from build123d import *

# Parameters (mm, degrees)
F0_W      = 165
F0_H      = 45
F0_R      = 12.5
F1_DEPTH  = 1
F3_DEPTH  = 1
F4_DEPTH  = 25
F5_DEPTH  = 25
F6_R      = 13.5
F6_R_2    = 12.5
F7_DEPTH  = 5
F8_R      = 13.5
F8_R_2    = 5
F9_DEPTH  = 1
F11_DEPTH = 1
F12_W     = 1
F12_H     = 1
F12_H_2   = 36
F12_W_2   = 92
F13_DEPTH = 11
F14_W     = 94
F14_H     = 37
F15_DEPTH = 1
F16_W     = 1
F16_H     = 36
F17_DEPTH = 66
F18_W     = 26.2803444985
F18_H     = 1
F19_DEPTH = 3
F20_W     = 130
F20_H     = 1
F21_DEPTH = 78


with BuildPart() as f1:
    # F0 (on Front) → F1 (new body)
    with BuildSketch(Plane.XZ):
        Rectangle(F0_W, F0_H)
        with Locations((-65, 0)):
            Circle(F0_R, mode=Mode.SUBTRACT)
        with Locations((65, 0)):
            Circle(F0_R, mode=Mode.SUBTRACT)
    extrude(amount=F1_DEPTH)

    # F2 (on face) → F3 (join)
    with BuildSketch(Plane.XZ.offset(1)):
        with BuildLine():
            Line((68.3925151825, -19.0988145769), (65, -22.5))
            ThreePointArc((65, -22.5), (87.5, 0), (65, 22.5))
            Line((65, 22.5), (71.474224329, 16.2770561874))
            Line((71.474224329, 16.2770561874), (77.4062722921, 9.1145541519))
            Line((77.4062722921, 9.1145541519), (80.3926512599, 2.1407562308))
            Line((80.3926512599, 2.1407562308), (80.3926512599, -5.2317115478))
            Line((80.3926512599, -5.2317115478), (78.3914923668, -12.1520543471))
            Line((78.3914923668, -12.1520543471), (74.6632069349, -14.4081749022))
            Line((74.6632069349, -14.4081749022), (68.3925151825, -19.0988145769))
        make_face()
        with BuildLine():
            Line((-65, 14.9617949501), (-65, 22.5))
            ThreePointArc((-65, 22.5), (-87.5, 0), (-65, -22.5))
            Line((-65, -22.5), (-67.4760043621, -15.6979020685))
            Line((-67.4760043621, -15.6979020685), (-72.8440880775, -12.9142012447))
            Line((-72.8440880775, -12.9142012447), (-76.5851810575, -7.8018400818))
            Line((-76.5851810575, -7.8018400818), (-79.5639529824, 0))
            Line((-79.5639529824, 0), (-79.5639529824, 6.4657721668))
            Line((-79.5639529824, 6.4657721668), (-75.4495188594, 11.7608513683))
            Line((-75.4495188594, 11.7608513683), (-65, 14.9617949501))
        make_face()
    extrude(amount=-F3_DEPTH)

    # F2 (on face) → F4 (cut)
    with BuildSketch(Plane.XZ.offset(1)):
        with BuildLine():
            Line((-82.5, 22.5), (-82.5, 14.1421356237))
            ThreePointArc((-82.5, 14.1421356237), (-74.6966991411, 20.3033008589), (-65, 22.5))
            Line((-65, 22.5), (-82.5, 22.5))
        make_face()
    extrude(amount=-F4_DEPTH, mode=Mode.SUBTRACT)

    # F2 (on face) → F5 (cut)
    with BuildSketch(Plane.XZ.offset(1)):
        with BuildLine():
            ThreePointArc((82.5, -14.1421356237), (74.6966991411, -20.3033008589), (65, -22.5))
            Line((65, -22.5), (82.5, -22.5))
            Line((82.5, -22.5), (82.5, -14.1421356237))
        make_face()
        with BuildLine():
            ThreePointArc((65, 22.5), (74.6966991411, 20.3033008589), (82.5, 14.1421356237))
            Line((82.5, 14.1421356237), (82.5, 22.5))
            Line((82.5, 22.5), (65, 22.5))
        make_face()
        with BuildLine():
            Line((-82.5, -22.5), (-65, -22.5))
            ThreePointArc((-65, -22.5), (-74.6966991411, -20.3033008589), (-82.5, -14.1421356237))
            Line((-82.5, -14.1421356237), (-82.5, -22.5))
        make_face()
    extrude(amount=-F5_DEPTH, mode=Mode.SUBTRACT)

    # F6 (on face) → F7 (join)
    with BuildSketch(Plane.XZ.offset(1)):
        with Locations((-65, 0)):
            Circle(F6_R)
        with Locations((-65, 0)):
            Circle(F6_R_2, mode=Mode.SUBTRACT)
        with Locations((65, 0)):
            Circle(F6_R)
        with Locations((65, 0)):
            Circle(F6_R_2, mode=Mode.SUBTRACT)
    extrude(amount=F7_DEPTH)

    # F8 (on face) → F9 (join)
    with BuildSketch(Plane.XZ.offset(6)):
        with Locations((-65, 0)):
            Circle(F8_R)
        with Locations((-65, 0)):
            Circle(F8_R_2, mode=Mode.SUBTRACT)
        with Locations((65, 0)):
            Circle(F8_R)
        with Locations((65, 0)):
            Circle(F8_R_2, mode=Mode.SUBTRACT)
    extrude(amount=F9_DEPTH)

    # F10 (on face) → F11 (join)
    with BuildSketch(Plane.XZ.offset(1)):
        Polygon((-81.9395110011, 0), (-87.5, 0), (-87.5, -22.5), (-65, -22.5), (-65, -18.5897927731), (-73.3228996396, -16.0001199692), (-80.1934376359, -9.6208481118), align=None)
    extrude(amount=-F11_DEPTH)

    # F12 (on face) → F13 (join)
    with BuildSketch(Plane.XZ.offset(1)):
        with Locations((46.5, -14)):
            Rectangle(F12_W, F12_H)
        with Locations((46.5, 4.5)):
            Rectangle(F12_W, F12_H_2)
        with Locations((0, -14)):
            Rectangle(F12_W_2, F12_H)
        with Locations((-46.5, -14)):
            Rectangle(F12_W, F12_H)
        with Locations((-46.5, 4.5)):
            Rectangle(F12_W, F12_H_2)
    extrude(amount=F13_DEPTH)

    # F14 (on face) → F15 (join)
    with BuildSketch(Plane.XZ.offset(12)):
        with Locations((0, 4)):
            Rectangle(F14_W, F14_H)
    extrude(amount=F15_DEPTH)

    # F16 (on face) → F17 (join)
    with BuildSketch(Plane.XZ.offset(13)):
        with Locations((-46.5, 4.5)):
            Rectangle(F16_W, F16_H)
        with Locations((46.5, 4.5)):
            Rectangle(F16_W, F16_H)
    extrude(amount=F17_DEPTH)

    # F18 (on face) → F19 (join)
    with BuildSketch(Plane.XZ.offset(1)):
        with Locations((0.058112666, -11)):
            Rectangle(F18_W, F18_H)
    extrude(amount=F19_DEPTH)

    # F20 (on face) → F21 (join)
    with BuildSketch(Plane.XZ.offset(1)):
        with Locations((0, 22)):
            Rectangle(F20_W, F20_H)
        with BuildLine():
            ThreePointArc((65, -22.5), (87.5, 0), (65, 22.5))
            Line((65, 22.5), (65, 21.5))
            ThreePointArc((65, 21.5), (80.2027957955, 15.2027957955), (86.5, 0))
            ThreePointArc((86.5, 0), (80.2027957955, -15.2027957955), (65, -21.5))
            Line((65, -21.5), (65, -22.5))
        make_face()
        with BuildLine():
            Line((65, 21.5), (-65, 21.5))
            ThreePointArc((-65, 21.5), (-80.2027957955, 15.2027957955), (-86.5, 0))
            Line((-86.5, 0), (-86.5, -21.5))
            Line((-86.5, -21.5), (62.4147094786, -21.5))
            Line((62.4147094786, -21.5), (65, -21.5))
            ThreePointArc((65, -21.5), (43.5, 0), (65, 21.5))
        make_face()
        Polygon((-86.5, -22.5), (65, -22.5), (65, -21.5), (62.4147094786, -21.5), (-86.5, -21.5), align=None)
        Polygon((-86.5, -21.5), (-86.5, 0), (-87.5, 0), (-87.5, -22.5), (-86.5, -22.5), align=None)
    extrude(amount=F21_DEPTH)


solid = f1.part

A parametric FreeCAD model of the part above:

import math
import FreeCAD as App
import Part
import Sketcher
from FreeCAD import Vector
Q = App.Units.Quantity


def add_polygon(sketch, points):
    """Adds a closed chain of lines whose ends are joined by coincident constraints."""
    first, n = sketch.GeometryCount, len(points)
    for a, b in zip(points, points[1:] + points[:1]):
        sketch.addGeometry(Part.LineSegment(App.Vector(*a, 0), App.Vector(*b, 0)), False)
    for i in range(n):
        sketch.addConstraint(Sketcher.Constraint("Coincident", first + i, 2, first + (i + 1) % n, 1))

doc = App.newDocument("Part")
body = doc.addObject("PartDesign::Body", "Body")

# Sketch on XZ plane
sketch1 = body.newObject("Sketcher::SketchObject", "Sketch")
sketch1.AttachmentSupport = (doc.getObject("XZ_Plane"), [""])
sketch1.MapMode = "FlatFace"
add_polygon(sketch1, [(-82, 22), (-82, -22), (82, -22), (82, 22)])  # lines 0-3
sketch1.addGeometry(Part.Circle(Vector(-65, 0, 0), Vector(0, 0, 1), 12), False)  # 4
sketch1.addGeometry(Part.Circle(Vector(65, 0, 0), Vector(0, 0, 1), 12), False)  # 5
sketch1.addConstraint([
    Sketcher.Constraint("Vertical", 0),
    Sketcher.Constraint("Horizontal", 1),
    Sketcher.Constraint("Vertical", 2),
    Sketcher.Constraint("Horizontal", 3),
    Sketcher.Constraint("Equal", 4, 5),
    Sketcher.Constraint("Symmetric", 4, 3, 5, 3, -1, 1),
    Sketcher.Constraint("Symmetric", 0, 2, 2, 2, -1, 1),
    Sketcher.Constraint("PointOnObject", 4, 3, -1),
    Sketcher.Constraint("Diameter", 4, Q("25 mm")),
    Sketcher.Constraint("DistanceX", 1, 1, 1, 2, Q("165 mm")),
    Sketcher.Constraint("DistanceY", 0, 2, 0, 1, Q("45 mm")),
    Sketcher.Constraint("DistanceX", 4, 3, -1, 1, Q("65 mm")),
])
pad1 = body.newObject("PartDesign::Pad", "Pad")
pad1.Profile = sketch1
pad1.Length = 1

# Sketch on XZ plane
sketch2 = body.newObject("Sketcher::SketchObject", "Sketch001")
sketch2.AttachmentSupport = (doc.getObject("XZ_Plane"), [""])
sketch2.MapMode = "FlatFace"
sketch2.AttachmentOffset = App.Placement(Vector(0, 0, 1), App.Rotation())
sketch2.addGeometry([
    Part.LineSegment(Vector(68.4, -19.1, 0), Vector(65, -22.5, 0)),  # 0
    Part.ArcOfCircle(Part.Circle(Vector(65, 0, 0), Vector(0, 0, 1), 22.5), math.radians(-90), math.radians(90)),  # 1
    Part.LineSegment(Vector(65, 22.5, 0), Vector(71.5, 16.3, 0)),  # 2
    Part.LineSegment(Vector(71.5, 16.3, 0), Vector(77.4, 9.1, 0)),  # 3
    Part.LineSegment(Vector(77.4, 9.1, 0), Vector(80.4, 2.1, 0)),  # 4
    Part.LineSegment(Vector(80.4, 2.1, 0), Vector(80.4, -5.2, 0)),  # 5
    Part.LineSegment(Vector(80.4, -5.2, 0), Vector(78.4, -12.2, 0)),  # 6
    Part.LineSegment(Vector(78.4, -12.2, 0), Vector(74.7, -14.4, 0)),  # 7
    Part.LineSegment(Vector(74.7, -14.4, 0), Vector(68.4, -19.1, 0)),  # 8
    Part.LineSegment(Vector(-65, 15, 0), Vector(-65, 22.5, 0)),  # 9
    Part.ArcOfCircle(Part.Circle(Vector(-65, 0, 0), Vector(0, 0, 1), 22.5), math.radians(90), math.radians(270)),  # 10
    Part.LineSegment(Vector(-65, -22.5, 0), Vector(-67.5, -15.7, 0)),  # 11
    Part.LineSegment(Vector(-67.5, -15.7, 0), Vector(-72.8, -12.9, 0)),  # 12
    Part.LineSegment(Vector(-72.8, -12.9, 0), Vector(-76.6, -7.8, 0)),  # 13
    Part.LineSegment(Vector(-76.6, -7.8, 0), Vector(-79.6, 0, 0)),  # 14
    Part.LineSegment(Vector(-79.6, 0, 0), Vector(-79.6, 6.5, 0)),  # 15
    Part.LineSegment(Vector(-79.6, 6.5, 0), Vector(-75.4, 11.8, 0)),  # 16
    Part.LineSegment(Vector(-75.4, 11.8, 0), Vector(-65, 15, 0)),  # 17
], False)
sketch2.addConstraint([
    Sketcher.Constraint("Coincident", 0, 2, 1, 1),
    Sketcher.Constraint("Coincident", 1, 2, 2, 1),
    Sketcher.Constraint("Coincident", 2, 2, 3, 1),
    Sketcher.Constraint("Coincident", 3, 2, 4, 1),
    Sketcher.Constraint("Coincident", 4, 2, 5, 1),
    Sketcher.Constraint("Coincident", 5, 2, 6, 1),
    Sketcher.Constraint("Coincident", 6, 2, 7, 1),
    Sketcher.Constraint("Coincident", 7, 2, 8, 1),
    Sketcher.Constraint("Coincident", 8, 2, 0, 1),
    Sketcher.Constraint("Coincident", 9, 2, 10, 1),
    Sketcher.Constraint("Coincident", 10, 2, 11, 1),
    Sketcher.Constraint("Coincident", 11, 2, 12, 1),
    Sketcher.Constraint("Coincident", 12, 2, 13, 1),
    Sketcher.Constraint("Coincident", 13, 2, 14, 1),
    Sketcher.Constraint("Coincident", 14, 2, 15, 1),
    Sketcher.Constraint("Coincident", 15, 2, 16, 1),
    Sketcher.Constraint("Coincident", 16, 2, 17, 1),
    Sketcher.Constraint("Coincident", 17, 2, 9, 1),
    Sketcher.Constraint("Vertical", 5),
    Sketcher.Constraint("Vertical", 9),
    Sketcher.Constraint("Vertical", 15),
    Sketcher.Constraint("Equal", 1, 10),
    Sketcher.Constraint("Symmetric", 1, 3, 10, 3, -1, 1),
    Sketcher.Constraint("Symmetric", 1, 2, 9, 2, -2),
    Sketcher.Constraint("PointOnObject", 14, 2, -1),
    Sketcher.Constraint("Vertical", 1, 3, 0, 2),
    Sketcher.Constraint("Vertical", 0, 2, 1, 2),
    Sketcher.Constraint("Vertical", 9, 2, 10, 2),
    Sketcher.Constraint("Radius", 1, Q("22.5 mm")),
    Sketcher.Constraint("DistanceX", -1, 1, 1, 3, Q("65 mm")),
    Sketcher.Constraint("Distance", 16, Q("6.705701 mm")),
    Sketcher.Constraint("DistanceY", 12, 2, -1, 1, Q("12.914201 mm")),
    Sketcher.Constraint("DistanceY", 4, 2, 2, 2, Q("14.1363 mm")),
    Sketcher.Constraint("DistanceY", 11, 2, 12, 2, Q("2.783701 mm")),
    Sketcher.Constraint("Distance", 2, Q("8.980012 mm")),
    Sketcher.Constraint("Distance", 17, Q("10.928792 mm")),
    Sketcher.Constraint("DistanceY", 5, 2, 5, 1, Q("7.372468 mm")),
    Sketcher.Constraint("DistanceY", 9, 1, 9, 2, Q("7.538205 mm")),
    Sketcher.Constraint("DistanceY", 15, 1, 15, 2, Q("6.465772 mm")),
    Sketcher.Constraint("DistanceX", -1, 1, 4, 2, Q("80.392651 mm")),
    Sketcher.Constraint("DistanceY", 5, 2, -1, 1, Q("5.231712 mm")),
    Sketcher.Constraint("DistanceX", 12, 2, -1, 1, Q("72.844088 mm")),
    Sketcher.Constraint("DistanceX", 13, 2, -1, 1, Q("76.585181 mm")),
    Sketcher.Constraint("DistanceY", 13, 2, -1, 1, Q("7.80184 mm")),
    Sketcher.Constraint("DistanceX", 16, 2, -1, 1, Q("75.449519 mm")),
    Sketcher.Constraint("DistanceX", 3, 2, 4, 2, Q("2.986379 mm")),
    Sketcher.Constraint("DistanceX", 6, 2, 5, 2, Q("2.001159 mm")),
    Sketcher.Constraint("DistanceY", 6, 2, 4, 2, Q("14.292811 mm")),
    Sketcher.Constraint("DistanceY", 6, 2, 3, 2, Q("21.266608 mm")),
    Sketcher.Constraint("DistanceY", 7, 2, 6, 2, Q("2.256121 mm")),
    Sketcher.Constraint("DistanceX", 8, 2, 7, 2, Q("6.270692 mm")),
    Sketcher.Constraint("DistanceY", 8, 2, 7, 2, Q("4.69064 mm")),
    Sketcher.Constraint("DistanceX", 14, 2, 11, 2, Q("12.087949 mm")),
    Sketcher.Constraint("Distance", 0, Q("4.803876 mm")),
])
pad2 = body.newObject("PartDesign::Pad", "Pad001")
pad2.Profile = sketch2
pad2.Length = 1
pad2.Reversed = True

# Sketch on XZ plane
sketch3 = body.newObject("Sketcher::SketchObject", "Sketch002")
sketch3.AttachmentSupport = (doc.getObject("XZ_Plane"), [""])
sketch3.MapMode = "FlatFace"
sketch3.AttachmentOffset = App.Placement(Vector(0, 0, 1), App.Rotation())
sketch3.addGeometry([
    Part.LineSegment(Vector(-82, 22, 0), Vector(-82, 14, 0)),
    Part.ArcOfCircle(Part.Circle(Vector(-65, 0, 0), Vector(0, 0, 1), 22), math.radians(90), math.radians(141)),
    Part.LineSegment(Vector(-65, 22, 0), Vector(-82, 22, 0)),
], False)
sketch3.addConstraint([
    Sketcher.Constraint("Coincident", 0, 2, 1, 2),
    Sketcher.Constraint("Tangent", 1, 1, 2, 1),
    Sketcher.Constraint("Coincident", 2, 2, 0, 1),
    Sketcher.Constraint("Vertical", 0),
    Sketcher.Constraint("Horizontal", 2),
    Sketcher.Constraint("PointOnObject", 1, 3, -1),
    Sketcher.Constraint("Radius", 1, Q("22.5 mm")),
    Sketcher.Constraint("DistanceX", 2, 2, 2, 1, Q("17.5 mm")),
    Sketcher.Constraint("DistanceX", 1, 3, -1, 1, Q("65 mm")),
])
pocket1 = body.newObject("PartDesign::Pocket", "Pocket")
pocket1.Profile = sketch3
pocket1.Length = 25

# Sketch on XZ plane
sketch4 = body.newObject("Sketcher::SketchObject", "Sketch003")
sketch4.AttachmentSupport = (doc.getObject("XZ_Plane"), [""])
sketch4.MapMode = "FlatFace"
sketch4.AttachmentOffset = App.Placement(Vector(0, 0, 1), App.Rotation())
sketch4.addGeometry([
    Part.ArcOfCircle(Part.Circle(Vector(65, 0, 0), Vector(0, 0, 1), 22), math.radians(-90), math.radians(-39)),  # 0
    Part.LineSegment(Vector(65, -22, 0), Vector(82, -22, 0)),  # 1
    Part.LineSegment(Vector(82, -22, 0), Vector(82, -14, 0)),  # 2
    Part.ArcOfCircle(Part.Circle(Vector(65, 0, 0), Vector(0, 0, 1), 22), math.radians(39), math.radians(90)),  # 3
    Part.LineSegment(Vector(82, 14, 0), Vector(82, 22, 0)),  # 4
    Part.LineSegment(Vector(82, 22, 0), Vector(65, 22, 0)),  # 5
    Part.LineSegment(Vector(-82, -22, 0), Vector(-65, -22, 0)),  # 6
    Part.ArcOfCircle(Part.Circle(Vector(-65, 0, 0), Vector(0, 0, 1), 22), math.radians(-141), math.radians(-90)),  # 7
    Part.LineSegment(Vector(-82, -14, 0), Vector(-82, -22, 0)),  # 8
], False)
sketch4.addConstraint([
    Sketcher.Constraint("Tangent", 0, 1, 1, 1),
    Sketcher.Constraint("Coincident", 1, 2, 2, 1),
    Sketcher.Constraint("Coincident", 2, 2, 0, 2),
    Sketcher.Constraint("Coincident", 3, 1, 4, 1),
    Sketcher.Constraint("Coincident", 4, 2, 5, 1),
    Sketcher.Constraint("Tangent", 5, 2, 3, 2),
    Sketcher.Constraint("Tangent", 6, 2, 7, 2),
    Sketcher.Constraint("Coincident", 7, 1, 8, 1),
    Sketcher.Constraint("Coincident", 8, 2, 6, 1),
    Sketcher.Constraint("Horizontal", 1),
    Sketcher.Constraint("Vertical", 2),
    Sketcher.Constraint("Vertical", 4),
    Sketcher.Constraint("Horizontal", 5),
    Sketcher.Constraint("Horizontal", 6),
    Sketcher.Constraint("Vertical", 8),
    Sketcher.Constraint("Coincident", 3, 3, 0, 3),
    Sketcher.Constraint("Equal", 0, 3),
    Sketcher.Constraint("Equal", 3, 7),
    Sketcher.Constraint("Symmetric", 0, 3, 7, 3, -1, 1),
    Sketcher.Constraint("Symmetric", 2, 2, 7, 1, -2),
    Sketcher.Constraint("Vertical", 2, 2, 3, 1),
    Sketcher.Constraint("Radius", 0, Q("22.5 mm")),
    Sketcher.Constraint("DistanceX", 1, 1, 1, 2, Q("17.5 mm")),
    Sketcher.Constraint("DistanceX", -1, 1, 0, 3, Q("65 mm")),
])
pocket2 = body.newObject("PartDesign::Pocket", "Pocket001")
pocket2.Profile = sketch4
pocket2.Length = 25

# Sketch on XZ plane
sketch5 = body.newObject("Sketcher::SketchObject", "Sketch004")
sketch5.AttachmentSupport = (doc.getObject("XZ_Plane"), [""])
sketch5.MapMode = "FlatFace"
sketch5.AttachmentOffset = App.Placement(Vector(0, 0, 1), App.Rotation())
sketch5.addGeometry([
    Part.Circle(Vector(-65, 0, 0), Vector(0, 0, 1), 14),
    Part.Circle(Vector(-65, 0, 0), Vector(0, 0, 1), 12),
    Part.Circle(Vector(65, 0, 0), Vector(0, 0, 1), 14),
    Part.Circle(Vector(65, 0, 0), Vector(0, 0, 1), 12),
], False)
sketch5.addConstraint([
    Sketcher.Constraint("Coincident", 1, 3, 0, 3),
    Sketcher.Constraint("Coincident", 3, 3, 2, 3),
    Sketcher.Constraint("Equal", 0, 2),
    Sketcher.Constraint("Equal", 1, 3),
    Sketcher.Constraint("Symmetric", 0, 3, 2, 3, -1, 1),
    Sketcher.Constraint("PointOnObject", 0, 3, -1),
    Sketcher.Constraint("Diameter", 0, Q("27 mm")),
    Sketcher.Constraint("Diameter", 1, Q("25 mm")),
    Sketcher.Constraint("DistanceX", 0, 3, -1, 1, Q("65 mm")),
])
pad3 = body.newObject("PartDesign::Pad", "Pad002")
pad3.Profile = sketch5
pad3.Length = 5

# Sketch on XZ plane
sketch6 = body.newObject("Sketcher::SketchObject", "Sketch005")
sketch6.AttachmentSupport = (doc.getObject("XZ_Plane"), [""])
sketch6.MapMode = "FlatFace"
sketch6.AttachmentOffset = App.Placement(Vector(0, 0, 6), App.Rotation())
sketch6.addGeometry([
    Part.Circle(Vector(-65, 0, 0), Vector(0, 0, 1), 14),
    Part.Circle(Vector(-65, 0, 0), Vector(0, 0, 1), 5),
    Part.Circle(Vector(65, 0, 0), Vector(0, 0, 1), 14),
    Part.Circle(Vector(65, 0, 0), Vector(0, 0, 1), 5),
], False)
sketch6.addConstraint([
    Sketcher.Constraint("Coincident", 1, 3, 0, 3),
    Sketcher.Constraint("Coincident", 3, 3, 2, 3),
    Sketcher.Constraint("Equal", 0, 2),
    Sketcher.Constraint("Equal", 1, 3),
    Sketcher.Constraint("Symmetric", 0, 3, 2, 3, -1, 1),
    Sketcher.Constraint("PointOnObject", 0, 3, -1),
    Sketcher.Constraint("Diameter", 0, Q("27 mm")),
    Sketcher.Constraint("Diameter", 1, Q("10 mm")),
    Sketcher.Constraint("DistanceX", 0, 3, -1, 1, Q("65 mm")),
])
pad4 = body.newObject("PartDesign::Pad", "Pad003")
pad4.Profile = sketch6
pad4.Length = 1

# Sketch on XZ plane
sketch7 = body.newObject("Sketcher::SketchObject", "Sketch006")
sketch7.AttachmentSupport = (doc.getObject("XZ_Plane"), [""])
sketch7.MapMode = "FlatFace"
sketch7.AttachmentOffset = App.Placement(Vector(0, 0, 1), App.Rotation())
add_polygon(sketch7, [(-81.9, 0), (-87.5, 0), (-87.5, -22.5), (-65, -22.5), (-65, -18.6), (-73.3, -16), (-80.2, -9.6)])  # lines 0-6
sketch7.addConstraint([
    Sketcher.Constraint("Horizontal", 0),
    Sketcher.Constraint("Vertical", 1),
    Sketcher.Constraint("Horizontal", 2),
    Sketcher.Constraint("Vertical", 3),
    Sketcher.Constraint("PointOnObject", 0, 2, -1),
    Sketcher.Constraint("Equal", 2, 1),
    Sketcher.Constraint("DistanceX", 2, 1, 2, 2, Q("22.5 mm")),
    Sketcher.Constraint("DistanceX", 2, 2, -1, 1, Q("65 mm")),
    Sketcher.Constraint("DistanceX", 0, 2, 0, 1, Q("5.560489 mm")),
    Sketcher.Constraint("DistanceX", 4, 2, -1, 1, Q("73.3229 mm")),
    Sketcher.Constraint("Distance", 5, Q("9.375468 mm")),
    Sketcher.Constraint("Distance", 6, Q("9.778011 mm")),
    Sketcher.Constraint("DistanceY", 3, 1, 3, 2, Q("3.910207 mm")),
    Sketcher.Constraint("DistanceY", 4, 2, -1, 1, Q("16.00012 mm")),
])
pad5 = body.newObject("PartDesign::Pad", "Pad004")
pad5.Profile = sketch7
pad5.Length = 1
pad5.Reversed = True

# Sketch on XZ plane
sketch8 = body.newObject("Sketcher::SketchObject", "Sketch007")
sketch8.AttachmentSupport = (doc.getObject("XZ_Plane"), [""])
sketch8.MapMode = "FlatFace"
sketch8.AttachmentOffset = App.Placement(Vector(0, 0, 1), App.Rotation())
add_polygon(sketch8, [(47, -14.5), (47, 22.5), (46, 22.5), (46, -13.5), (-46, -13.5), (-46, 22.5), (-47, 22.5), (-47, -14.5)])  # lines 0-7
sketch8.addConstraint([
    Sketcher.Constraint("Vertical", 0),
    Sketcher.Constraint("Horizontal", 1),
    Sketcher.Constraint("Vertical", 2),
    Sketcher.Constraint("Horizontal", 3),
    Sketcher.Constraint("Vertical", 4),
    Sketcher.Constraint("Horizontal", 5),
    Sketcher.Constraint("Vertical", 6),
    Sketcher.Constraint("Horizontal", 7),
    Sketcher.Constraint("Symmetric", 1, 2, 4, 2, -2),
    Sketcher.Constraint("Equal", 1, 5),
    Sketcher.Constraint("DistanceX", 1, 2, 1, 1, Q("1 mm")),
    Sketcher.Constraint("DistanceX", 3, 2, 3, 1, Q("92 mm")),
    Sketcher.Constraint("DistanceY", 0, 1, 0, 2, Q("37 mm")),
    Sketcher.Constraint("DistanceY", 2, 2, 2, 1, Q("36 mm")),
    Sketcher.Constraint("DistanceY", -1, 1, 0, 2, Q("22.5 mm")),
])
pad6 = body.newObject("PartDesign::Pad", "Pad005")
pad6.Profile = sketch8
pad6.Length = 11

# Sketch on XZ plane
sketch9 = body.newObject("Sketcher::SketchObject", "Sketch008")
sketch9.AttachmentSupport = (doc.getObject("XZ_Plane"), [""])
sketch9.MapMode = "FlatFace"
sketch9.AttachmentOffset = App.Placement(Vector(0, 0, 12), App.Rotation())
add_polygon(sketch9, [(-47, 22), (-47, -14), (47, -14), (47, 22)])  # lines 0-3
sketch9.addConstraint([
    Sketcher.Constraint("Vertical", 0),
    Sketcher.Constraint("Horizontal", 1),
    Sketcher.Constraint("Vertical", 2),
    Sketcher.Constraint("Horizontal", 3),
    Sketcher.Constraint("DistanceX", 1, 1, 1, 2, Q("94 mm")),
    Sketcher.Constraint("DistanceY", 0, 2, 0, 1, Q("37 mm")),
    Sketcher.Constraint("DistanceX", 0, 2, -1, 1, Q("47 mm")),
    Sketcher.Constraint("DistanceY", 0, 2, -1, 1, Q("14.5 mm")),
])
pad7 = body.newObject("PartDesign::Pad", "Pad006")
pad7.Profile = sketch9
pad7.Length = 1

# Sketch on XZ plane
sketch10 = body.newObject("Sketcher::SketchObject", "Sketch009")
sketch10.AttachmentSupport = (doc.getObject("XZ_Plane"), [""])
sketch10.MapMode = "FlatFace"
sketch10.AttachmentOffset = App.Placement(Vector(0, 0, 13), App.Rotation())
add_polygon(sketch10, [(-47, 22.5), (-47, -13.5), (-46, -13.5), (-46, 22.5)])  # lines 0-3
add_polygon(sketch10, [(46, 22.5), (46, -13.5), (47, -13.5), (47, 22.5)])  # lines 4-7
sketch10.addConstraint([
    Sketcher.Constraint("Vertical", 0),
    Sketcher.Constraint("Horizontal", 1),
    Sketcher.Constraint("Vertical", 2),
    Sketcher.Constraint("Horizontal", 3),
    Sketcher.Constraint("Vertical", 4),
    Sketcher.Constraint("Horizontal", 5),
    Sketcher.Constraint("Vertical", 6),
    Sketcher.Constraint("Horizontal", 7),
    Sketcher.Constraint("Symmetric", 1, 2, 4, 2, -2),
    Sketcher.Constraint("Symmetric", 3, 2, 6, 2, -2),
    Sketcher.Constraint("DistanceX", 1, 1, 1, 2, Q("1 mm")),
    Sketcher.Constraint("DistanceY", 0, 2, 0, 1, Q("36 mm")),
    Sketcher.Constraint("DistanceX", 0, 2, -1, 1, Q("47 mm")),
    Sketcher.Constraint("DistanceY", 0, 2, -1, 1, Q("13.5 mm")),
])
pad8 = body.newObject("PartDesign::Pad", "Pad007")
pad8.Profile = sketch10
pad8.Length = 66

# Sketch on XZ plane
sketch11 = body.newObject("Sketcher::SketchObject", "Sketch010")
sketch11.AttachmentSupport = (doc.getObject("XZ_Plane"), [""])
sketch11.MapMode = "FlatFace"
sketch11.AttachmentOffset = App.Placement(Vector(0, 0, 1), App.Rotation())
add_polygon(sketch11, [(-13.1, -10.5), (-13.1, -11.5), (13.2, -11.5), (13.2, -10.5)])  # lines 0-3
sketch11.addConstraint([
    Sketcher.Constraint("Vertical", 0),
    Sketcher.Constraint("Horizontal", 1),
    Sketcher.Constraint("Vertical", 2),
    Sketcher.Constraint("Horizontal", 3),
    Sketcher.Constraint("DistanceY", 0, 2, 0, 1, Q("1 mm")),
    Sketcher.Constraint("DistanceY", 0, 2, -1, 1, Q("11.5 mm")),
    Sketcher.Constraint("DistanceX", 1, 1, 1, 2, Q("26.280344 mm")),
    Sketcher.Constraint("DistanceX", 0, 2, -1, 1, Q("13.08206 mm")),
])
pad9 = body.newObject("PartDesign::Pad", "Pad008")
pad9.Profile = sketch11
pad9.Length = 3

# Sketch on XZ plane
sketch12 = body.newObject("Sketcher::SketchObject", "Sketch011")
sketch12.AttachmentSupport = (doc.getObject("XZ_Plane"), [""])
sketch12.MapMode = "FlatFace"
sketch12.AttachmentOffset = App.Placement(Vector(0, 0, 1), App.Rotation())
sketch12.addGeometry([
    Part.ArcOfCircle(Part.Circle(Vector(65, 0, 0), Vector(0, 0, 1), 22.5), math.radians(-90), math.radians(90)),  # 0
    Part.LineSegment(Vector(65, 22.5, 0), Vector(-65, 22.5, 0)),  # 1
    Part.LineSegment(Vector(-65, 22.5, 0), Vector(-65, 21.5, 0)),  # 2
    Part.ArcOfCircle(Part.Circle(Vector(-65, 0, 0), Vector(0, 0, 1), 21.5), math.radians(90), math.radians(180)),  # 3
    Part.LineSegment(Vector(-86.5, 0, 0), Vector(-87.5, 0, 0)),  # 4
    Part.LineSegment(Vector(-87.5, 0, 0), Vector(-87.5, -22.5, 0)),  # 5
    Part.LineSegment(Vector(-87.5, -22.5, 0), Vector(65, -22.5, 0)),  # 6
    Part.ArcOfCircle(Part.Circle(Vector(65, 0, 0), Vector(0, 0, 1), 21.5), math.radians(-90), math.radians(0)),  # 7
    Part.ArcOfCircle(Part.Circle(Vector(65, 0, 0), Vector(0, 0, 1), 21.5), math.radians(90), math.radians(270)),  # 8
    Part.ArcOfCircle(Part.Circle(Vector(65, 0, 0), Vector(0, 0, 1), 21.5), math.radians(0), math.radians(90)),  # 9
], False)
sketch12.addConstraint([
    Sketcher.Constraint("Tangent", 0, 2, 1, 1),
    Sketcher.Constraint("Coincident", 1, 2, 2, 1),
    Sketcher.Constraint("Coincident", 2, 2, 3, 1),
    Sketcher.Constraint("Coincident", 3, 2, 4, 1),
    Sketcher.Constraint("Coincident", 4, 2, 5, 1),
    Sketcher.Constraint("Coincident", 5, 2, 6, 1),
    Sketcher.Constraint("Tangent", 6, 2, 0, 1),
    Sketcher.Constraint("Tangent", 7, 1, 8, 2),
    Sketcher.Constraint("Tangent", 8, 1, 9, 2),
    Sketcher.Constraint("Tangent", 9, 1, 7, 2),
    Sketcher.Constraint("Horizontal", 1),
    Sketcher.Constraint("Vertical", 2),
    Sketcher.Constraint("Horizontal", 4),
    Sketcher.Constraint("Vertical", 5),
    Sketcher.Constraint("Horizontal", 6),
    Sketcher.Constraint("Coincident", 7, 3, 0, 3),
    Sketcher.Constraint("Equal", 3, 7),
    Sketcher.Constraint("Symmetric", 0, 3, 3, 3, -1, 1),
    Sketcher.Constraint("Symmetric", 1, 2, 6, 2, -1, 1),
    Sketcher.Constraint("PointOnObject", 3, 2, -1),
    Sketcher.Constraint("PointOnObject", 9, 1, -1),
    Sketcher.Constraint("Vertical", 6, 2, 7, 1),
    Sketcher.Constraint("Vertical", 7, 1, 8, 1),
    Sketcher.Constraint("Equal", 4, 2),
    Sketcher.Constraint("Radius", 0, Q("22.5 mm")),
    Sketcher.Constraint("Radius", 3, Q("21.5 mm")),
    Sketcher.Constraint("DistanceX", 1, 2, 1, 1, Q("130 mm")),
])
pad10 = body.newObject("PartDesign::Pad", "Pad009")
pad10.Profile = sketch12
pad10.Length = 78

doc.recompute()
